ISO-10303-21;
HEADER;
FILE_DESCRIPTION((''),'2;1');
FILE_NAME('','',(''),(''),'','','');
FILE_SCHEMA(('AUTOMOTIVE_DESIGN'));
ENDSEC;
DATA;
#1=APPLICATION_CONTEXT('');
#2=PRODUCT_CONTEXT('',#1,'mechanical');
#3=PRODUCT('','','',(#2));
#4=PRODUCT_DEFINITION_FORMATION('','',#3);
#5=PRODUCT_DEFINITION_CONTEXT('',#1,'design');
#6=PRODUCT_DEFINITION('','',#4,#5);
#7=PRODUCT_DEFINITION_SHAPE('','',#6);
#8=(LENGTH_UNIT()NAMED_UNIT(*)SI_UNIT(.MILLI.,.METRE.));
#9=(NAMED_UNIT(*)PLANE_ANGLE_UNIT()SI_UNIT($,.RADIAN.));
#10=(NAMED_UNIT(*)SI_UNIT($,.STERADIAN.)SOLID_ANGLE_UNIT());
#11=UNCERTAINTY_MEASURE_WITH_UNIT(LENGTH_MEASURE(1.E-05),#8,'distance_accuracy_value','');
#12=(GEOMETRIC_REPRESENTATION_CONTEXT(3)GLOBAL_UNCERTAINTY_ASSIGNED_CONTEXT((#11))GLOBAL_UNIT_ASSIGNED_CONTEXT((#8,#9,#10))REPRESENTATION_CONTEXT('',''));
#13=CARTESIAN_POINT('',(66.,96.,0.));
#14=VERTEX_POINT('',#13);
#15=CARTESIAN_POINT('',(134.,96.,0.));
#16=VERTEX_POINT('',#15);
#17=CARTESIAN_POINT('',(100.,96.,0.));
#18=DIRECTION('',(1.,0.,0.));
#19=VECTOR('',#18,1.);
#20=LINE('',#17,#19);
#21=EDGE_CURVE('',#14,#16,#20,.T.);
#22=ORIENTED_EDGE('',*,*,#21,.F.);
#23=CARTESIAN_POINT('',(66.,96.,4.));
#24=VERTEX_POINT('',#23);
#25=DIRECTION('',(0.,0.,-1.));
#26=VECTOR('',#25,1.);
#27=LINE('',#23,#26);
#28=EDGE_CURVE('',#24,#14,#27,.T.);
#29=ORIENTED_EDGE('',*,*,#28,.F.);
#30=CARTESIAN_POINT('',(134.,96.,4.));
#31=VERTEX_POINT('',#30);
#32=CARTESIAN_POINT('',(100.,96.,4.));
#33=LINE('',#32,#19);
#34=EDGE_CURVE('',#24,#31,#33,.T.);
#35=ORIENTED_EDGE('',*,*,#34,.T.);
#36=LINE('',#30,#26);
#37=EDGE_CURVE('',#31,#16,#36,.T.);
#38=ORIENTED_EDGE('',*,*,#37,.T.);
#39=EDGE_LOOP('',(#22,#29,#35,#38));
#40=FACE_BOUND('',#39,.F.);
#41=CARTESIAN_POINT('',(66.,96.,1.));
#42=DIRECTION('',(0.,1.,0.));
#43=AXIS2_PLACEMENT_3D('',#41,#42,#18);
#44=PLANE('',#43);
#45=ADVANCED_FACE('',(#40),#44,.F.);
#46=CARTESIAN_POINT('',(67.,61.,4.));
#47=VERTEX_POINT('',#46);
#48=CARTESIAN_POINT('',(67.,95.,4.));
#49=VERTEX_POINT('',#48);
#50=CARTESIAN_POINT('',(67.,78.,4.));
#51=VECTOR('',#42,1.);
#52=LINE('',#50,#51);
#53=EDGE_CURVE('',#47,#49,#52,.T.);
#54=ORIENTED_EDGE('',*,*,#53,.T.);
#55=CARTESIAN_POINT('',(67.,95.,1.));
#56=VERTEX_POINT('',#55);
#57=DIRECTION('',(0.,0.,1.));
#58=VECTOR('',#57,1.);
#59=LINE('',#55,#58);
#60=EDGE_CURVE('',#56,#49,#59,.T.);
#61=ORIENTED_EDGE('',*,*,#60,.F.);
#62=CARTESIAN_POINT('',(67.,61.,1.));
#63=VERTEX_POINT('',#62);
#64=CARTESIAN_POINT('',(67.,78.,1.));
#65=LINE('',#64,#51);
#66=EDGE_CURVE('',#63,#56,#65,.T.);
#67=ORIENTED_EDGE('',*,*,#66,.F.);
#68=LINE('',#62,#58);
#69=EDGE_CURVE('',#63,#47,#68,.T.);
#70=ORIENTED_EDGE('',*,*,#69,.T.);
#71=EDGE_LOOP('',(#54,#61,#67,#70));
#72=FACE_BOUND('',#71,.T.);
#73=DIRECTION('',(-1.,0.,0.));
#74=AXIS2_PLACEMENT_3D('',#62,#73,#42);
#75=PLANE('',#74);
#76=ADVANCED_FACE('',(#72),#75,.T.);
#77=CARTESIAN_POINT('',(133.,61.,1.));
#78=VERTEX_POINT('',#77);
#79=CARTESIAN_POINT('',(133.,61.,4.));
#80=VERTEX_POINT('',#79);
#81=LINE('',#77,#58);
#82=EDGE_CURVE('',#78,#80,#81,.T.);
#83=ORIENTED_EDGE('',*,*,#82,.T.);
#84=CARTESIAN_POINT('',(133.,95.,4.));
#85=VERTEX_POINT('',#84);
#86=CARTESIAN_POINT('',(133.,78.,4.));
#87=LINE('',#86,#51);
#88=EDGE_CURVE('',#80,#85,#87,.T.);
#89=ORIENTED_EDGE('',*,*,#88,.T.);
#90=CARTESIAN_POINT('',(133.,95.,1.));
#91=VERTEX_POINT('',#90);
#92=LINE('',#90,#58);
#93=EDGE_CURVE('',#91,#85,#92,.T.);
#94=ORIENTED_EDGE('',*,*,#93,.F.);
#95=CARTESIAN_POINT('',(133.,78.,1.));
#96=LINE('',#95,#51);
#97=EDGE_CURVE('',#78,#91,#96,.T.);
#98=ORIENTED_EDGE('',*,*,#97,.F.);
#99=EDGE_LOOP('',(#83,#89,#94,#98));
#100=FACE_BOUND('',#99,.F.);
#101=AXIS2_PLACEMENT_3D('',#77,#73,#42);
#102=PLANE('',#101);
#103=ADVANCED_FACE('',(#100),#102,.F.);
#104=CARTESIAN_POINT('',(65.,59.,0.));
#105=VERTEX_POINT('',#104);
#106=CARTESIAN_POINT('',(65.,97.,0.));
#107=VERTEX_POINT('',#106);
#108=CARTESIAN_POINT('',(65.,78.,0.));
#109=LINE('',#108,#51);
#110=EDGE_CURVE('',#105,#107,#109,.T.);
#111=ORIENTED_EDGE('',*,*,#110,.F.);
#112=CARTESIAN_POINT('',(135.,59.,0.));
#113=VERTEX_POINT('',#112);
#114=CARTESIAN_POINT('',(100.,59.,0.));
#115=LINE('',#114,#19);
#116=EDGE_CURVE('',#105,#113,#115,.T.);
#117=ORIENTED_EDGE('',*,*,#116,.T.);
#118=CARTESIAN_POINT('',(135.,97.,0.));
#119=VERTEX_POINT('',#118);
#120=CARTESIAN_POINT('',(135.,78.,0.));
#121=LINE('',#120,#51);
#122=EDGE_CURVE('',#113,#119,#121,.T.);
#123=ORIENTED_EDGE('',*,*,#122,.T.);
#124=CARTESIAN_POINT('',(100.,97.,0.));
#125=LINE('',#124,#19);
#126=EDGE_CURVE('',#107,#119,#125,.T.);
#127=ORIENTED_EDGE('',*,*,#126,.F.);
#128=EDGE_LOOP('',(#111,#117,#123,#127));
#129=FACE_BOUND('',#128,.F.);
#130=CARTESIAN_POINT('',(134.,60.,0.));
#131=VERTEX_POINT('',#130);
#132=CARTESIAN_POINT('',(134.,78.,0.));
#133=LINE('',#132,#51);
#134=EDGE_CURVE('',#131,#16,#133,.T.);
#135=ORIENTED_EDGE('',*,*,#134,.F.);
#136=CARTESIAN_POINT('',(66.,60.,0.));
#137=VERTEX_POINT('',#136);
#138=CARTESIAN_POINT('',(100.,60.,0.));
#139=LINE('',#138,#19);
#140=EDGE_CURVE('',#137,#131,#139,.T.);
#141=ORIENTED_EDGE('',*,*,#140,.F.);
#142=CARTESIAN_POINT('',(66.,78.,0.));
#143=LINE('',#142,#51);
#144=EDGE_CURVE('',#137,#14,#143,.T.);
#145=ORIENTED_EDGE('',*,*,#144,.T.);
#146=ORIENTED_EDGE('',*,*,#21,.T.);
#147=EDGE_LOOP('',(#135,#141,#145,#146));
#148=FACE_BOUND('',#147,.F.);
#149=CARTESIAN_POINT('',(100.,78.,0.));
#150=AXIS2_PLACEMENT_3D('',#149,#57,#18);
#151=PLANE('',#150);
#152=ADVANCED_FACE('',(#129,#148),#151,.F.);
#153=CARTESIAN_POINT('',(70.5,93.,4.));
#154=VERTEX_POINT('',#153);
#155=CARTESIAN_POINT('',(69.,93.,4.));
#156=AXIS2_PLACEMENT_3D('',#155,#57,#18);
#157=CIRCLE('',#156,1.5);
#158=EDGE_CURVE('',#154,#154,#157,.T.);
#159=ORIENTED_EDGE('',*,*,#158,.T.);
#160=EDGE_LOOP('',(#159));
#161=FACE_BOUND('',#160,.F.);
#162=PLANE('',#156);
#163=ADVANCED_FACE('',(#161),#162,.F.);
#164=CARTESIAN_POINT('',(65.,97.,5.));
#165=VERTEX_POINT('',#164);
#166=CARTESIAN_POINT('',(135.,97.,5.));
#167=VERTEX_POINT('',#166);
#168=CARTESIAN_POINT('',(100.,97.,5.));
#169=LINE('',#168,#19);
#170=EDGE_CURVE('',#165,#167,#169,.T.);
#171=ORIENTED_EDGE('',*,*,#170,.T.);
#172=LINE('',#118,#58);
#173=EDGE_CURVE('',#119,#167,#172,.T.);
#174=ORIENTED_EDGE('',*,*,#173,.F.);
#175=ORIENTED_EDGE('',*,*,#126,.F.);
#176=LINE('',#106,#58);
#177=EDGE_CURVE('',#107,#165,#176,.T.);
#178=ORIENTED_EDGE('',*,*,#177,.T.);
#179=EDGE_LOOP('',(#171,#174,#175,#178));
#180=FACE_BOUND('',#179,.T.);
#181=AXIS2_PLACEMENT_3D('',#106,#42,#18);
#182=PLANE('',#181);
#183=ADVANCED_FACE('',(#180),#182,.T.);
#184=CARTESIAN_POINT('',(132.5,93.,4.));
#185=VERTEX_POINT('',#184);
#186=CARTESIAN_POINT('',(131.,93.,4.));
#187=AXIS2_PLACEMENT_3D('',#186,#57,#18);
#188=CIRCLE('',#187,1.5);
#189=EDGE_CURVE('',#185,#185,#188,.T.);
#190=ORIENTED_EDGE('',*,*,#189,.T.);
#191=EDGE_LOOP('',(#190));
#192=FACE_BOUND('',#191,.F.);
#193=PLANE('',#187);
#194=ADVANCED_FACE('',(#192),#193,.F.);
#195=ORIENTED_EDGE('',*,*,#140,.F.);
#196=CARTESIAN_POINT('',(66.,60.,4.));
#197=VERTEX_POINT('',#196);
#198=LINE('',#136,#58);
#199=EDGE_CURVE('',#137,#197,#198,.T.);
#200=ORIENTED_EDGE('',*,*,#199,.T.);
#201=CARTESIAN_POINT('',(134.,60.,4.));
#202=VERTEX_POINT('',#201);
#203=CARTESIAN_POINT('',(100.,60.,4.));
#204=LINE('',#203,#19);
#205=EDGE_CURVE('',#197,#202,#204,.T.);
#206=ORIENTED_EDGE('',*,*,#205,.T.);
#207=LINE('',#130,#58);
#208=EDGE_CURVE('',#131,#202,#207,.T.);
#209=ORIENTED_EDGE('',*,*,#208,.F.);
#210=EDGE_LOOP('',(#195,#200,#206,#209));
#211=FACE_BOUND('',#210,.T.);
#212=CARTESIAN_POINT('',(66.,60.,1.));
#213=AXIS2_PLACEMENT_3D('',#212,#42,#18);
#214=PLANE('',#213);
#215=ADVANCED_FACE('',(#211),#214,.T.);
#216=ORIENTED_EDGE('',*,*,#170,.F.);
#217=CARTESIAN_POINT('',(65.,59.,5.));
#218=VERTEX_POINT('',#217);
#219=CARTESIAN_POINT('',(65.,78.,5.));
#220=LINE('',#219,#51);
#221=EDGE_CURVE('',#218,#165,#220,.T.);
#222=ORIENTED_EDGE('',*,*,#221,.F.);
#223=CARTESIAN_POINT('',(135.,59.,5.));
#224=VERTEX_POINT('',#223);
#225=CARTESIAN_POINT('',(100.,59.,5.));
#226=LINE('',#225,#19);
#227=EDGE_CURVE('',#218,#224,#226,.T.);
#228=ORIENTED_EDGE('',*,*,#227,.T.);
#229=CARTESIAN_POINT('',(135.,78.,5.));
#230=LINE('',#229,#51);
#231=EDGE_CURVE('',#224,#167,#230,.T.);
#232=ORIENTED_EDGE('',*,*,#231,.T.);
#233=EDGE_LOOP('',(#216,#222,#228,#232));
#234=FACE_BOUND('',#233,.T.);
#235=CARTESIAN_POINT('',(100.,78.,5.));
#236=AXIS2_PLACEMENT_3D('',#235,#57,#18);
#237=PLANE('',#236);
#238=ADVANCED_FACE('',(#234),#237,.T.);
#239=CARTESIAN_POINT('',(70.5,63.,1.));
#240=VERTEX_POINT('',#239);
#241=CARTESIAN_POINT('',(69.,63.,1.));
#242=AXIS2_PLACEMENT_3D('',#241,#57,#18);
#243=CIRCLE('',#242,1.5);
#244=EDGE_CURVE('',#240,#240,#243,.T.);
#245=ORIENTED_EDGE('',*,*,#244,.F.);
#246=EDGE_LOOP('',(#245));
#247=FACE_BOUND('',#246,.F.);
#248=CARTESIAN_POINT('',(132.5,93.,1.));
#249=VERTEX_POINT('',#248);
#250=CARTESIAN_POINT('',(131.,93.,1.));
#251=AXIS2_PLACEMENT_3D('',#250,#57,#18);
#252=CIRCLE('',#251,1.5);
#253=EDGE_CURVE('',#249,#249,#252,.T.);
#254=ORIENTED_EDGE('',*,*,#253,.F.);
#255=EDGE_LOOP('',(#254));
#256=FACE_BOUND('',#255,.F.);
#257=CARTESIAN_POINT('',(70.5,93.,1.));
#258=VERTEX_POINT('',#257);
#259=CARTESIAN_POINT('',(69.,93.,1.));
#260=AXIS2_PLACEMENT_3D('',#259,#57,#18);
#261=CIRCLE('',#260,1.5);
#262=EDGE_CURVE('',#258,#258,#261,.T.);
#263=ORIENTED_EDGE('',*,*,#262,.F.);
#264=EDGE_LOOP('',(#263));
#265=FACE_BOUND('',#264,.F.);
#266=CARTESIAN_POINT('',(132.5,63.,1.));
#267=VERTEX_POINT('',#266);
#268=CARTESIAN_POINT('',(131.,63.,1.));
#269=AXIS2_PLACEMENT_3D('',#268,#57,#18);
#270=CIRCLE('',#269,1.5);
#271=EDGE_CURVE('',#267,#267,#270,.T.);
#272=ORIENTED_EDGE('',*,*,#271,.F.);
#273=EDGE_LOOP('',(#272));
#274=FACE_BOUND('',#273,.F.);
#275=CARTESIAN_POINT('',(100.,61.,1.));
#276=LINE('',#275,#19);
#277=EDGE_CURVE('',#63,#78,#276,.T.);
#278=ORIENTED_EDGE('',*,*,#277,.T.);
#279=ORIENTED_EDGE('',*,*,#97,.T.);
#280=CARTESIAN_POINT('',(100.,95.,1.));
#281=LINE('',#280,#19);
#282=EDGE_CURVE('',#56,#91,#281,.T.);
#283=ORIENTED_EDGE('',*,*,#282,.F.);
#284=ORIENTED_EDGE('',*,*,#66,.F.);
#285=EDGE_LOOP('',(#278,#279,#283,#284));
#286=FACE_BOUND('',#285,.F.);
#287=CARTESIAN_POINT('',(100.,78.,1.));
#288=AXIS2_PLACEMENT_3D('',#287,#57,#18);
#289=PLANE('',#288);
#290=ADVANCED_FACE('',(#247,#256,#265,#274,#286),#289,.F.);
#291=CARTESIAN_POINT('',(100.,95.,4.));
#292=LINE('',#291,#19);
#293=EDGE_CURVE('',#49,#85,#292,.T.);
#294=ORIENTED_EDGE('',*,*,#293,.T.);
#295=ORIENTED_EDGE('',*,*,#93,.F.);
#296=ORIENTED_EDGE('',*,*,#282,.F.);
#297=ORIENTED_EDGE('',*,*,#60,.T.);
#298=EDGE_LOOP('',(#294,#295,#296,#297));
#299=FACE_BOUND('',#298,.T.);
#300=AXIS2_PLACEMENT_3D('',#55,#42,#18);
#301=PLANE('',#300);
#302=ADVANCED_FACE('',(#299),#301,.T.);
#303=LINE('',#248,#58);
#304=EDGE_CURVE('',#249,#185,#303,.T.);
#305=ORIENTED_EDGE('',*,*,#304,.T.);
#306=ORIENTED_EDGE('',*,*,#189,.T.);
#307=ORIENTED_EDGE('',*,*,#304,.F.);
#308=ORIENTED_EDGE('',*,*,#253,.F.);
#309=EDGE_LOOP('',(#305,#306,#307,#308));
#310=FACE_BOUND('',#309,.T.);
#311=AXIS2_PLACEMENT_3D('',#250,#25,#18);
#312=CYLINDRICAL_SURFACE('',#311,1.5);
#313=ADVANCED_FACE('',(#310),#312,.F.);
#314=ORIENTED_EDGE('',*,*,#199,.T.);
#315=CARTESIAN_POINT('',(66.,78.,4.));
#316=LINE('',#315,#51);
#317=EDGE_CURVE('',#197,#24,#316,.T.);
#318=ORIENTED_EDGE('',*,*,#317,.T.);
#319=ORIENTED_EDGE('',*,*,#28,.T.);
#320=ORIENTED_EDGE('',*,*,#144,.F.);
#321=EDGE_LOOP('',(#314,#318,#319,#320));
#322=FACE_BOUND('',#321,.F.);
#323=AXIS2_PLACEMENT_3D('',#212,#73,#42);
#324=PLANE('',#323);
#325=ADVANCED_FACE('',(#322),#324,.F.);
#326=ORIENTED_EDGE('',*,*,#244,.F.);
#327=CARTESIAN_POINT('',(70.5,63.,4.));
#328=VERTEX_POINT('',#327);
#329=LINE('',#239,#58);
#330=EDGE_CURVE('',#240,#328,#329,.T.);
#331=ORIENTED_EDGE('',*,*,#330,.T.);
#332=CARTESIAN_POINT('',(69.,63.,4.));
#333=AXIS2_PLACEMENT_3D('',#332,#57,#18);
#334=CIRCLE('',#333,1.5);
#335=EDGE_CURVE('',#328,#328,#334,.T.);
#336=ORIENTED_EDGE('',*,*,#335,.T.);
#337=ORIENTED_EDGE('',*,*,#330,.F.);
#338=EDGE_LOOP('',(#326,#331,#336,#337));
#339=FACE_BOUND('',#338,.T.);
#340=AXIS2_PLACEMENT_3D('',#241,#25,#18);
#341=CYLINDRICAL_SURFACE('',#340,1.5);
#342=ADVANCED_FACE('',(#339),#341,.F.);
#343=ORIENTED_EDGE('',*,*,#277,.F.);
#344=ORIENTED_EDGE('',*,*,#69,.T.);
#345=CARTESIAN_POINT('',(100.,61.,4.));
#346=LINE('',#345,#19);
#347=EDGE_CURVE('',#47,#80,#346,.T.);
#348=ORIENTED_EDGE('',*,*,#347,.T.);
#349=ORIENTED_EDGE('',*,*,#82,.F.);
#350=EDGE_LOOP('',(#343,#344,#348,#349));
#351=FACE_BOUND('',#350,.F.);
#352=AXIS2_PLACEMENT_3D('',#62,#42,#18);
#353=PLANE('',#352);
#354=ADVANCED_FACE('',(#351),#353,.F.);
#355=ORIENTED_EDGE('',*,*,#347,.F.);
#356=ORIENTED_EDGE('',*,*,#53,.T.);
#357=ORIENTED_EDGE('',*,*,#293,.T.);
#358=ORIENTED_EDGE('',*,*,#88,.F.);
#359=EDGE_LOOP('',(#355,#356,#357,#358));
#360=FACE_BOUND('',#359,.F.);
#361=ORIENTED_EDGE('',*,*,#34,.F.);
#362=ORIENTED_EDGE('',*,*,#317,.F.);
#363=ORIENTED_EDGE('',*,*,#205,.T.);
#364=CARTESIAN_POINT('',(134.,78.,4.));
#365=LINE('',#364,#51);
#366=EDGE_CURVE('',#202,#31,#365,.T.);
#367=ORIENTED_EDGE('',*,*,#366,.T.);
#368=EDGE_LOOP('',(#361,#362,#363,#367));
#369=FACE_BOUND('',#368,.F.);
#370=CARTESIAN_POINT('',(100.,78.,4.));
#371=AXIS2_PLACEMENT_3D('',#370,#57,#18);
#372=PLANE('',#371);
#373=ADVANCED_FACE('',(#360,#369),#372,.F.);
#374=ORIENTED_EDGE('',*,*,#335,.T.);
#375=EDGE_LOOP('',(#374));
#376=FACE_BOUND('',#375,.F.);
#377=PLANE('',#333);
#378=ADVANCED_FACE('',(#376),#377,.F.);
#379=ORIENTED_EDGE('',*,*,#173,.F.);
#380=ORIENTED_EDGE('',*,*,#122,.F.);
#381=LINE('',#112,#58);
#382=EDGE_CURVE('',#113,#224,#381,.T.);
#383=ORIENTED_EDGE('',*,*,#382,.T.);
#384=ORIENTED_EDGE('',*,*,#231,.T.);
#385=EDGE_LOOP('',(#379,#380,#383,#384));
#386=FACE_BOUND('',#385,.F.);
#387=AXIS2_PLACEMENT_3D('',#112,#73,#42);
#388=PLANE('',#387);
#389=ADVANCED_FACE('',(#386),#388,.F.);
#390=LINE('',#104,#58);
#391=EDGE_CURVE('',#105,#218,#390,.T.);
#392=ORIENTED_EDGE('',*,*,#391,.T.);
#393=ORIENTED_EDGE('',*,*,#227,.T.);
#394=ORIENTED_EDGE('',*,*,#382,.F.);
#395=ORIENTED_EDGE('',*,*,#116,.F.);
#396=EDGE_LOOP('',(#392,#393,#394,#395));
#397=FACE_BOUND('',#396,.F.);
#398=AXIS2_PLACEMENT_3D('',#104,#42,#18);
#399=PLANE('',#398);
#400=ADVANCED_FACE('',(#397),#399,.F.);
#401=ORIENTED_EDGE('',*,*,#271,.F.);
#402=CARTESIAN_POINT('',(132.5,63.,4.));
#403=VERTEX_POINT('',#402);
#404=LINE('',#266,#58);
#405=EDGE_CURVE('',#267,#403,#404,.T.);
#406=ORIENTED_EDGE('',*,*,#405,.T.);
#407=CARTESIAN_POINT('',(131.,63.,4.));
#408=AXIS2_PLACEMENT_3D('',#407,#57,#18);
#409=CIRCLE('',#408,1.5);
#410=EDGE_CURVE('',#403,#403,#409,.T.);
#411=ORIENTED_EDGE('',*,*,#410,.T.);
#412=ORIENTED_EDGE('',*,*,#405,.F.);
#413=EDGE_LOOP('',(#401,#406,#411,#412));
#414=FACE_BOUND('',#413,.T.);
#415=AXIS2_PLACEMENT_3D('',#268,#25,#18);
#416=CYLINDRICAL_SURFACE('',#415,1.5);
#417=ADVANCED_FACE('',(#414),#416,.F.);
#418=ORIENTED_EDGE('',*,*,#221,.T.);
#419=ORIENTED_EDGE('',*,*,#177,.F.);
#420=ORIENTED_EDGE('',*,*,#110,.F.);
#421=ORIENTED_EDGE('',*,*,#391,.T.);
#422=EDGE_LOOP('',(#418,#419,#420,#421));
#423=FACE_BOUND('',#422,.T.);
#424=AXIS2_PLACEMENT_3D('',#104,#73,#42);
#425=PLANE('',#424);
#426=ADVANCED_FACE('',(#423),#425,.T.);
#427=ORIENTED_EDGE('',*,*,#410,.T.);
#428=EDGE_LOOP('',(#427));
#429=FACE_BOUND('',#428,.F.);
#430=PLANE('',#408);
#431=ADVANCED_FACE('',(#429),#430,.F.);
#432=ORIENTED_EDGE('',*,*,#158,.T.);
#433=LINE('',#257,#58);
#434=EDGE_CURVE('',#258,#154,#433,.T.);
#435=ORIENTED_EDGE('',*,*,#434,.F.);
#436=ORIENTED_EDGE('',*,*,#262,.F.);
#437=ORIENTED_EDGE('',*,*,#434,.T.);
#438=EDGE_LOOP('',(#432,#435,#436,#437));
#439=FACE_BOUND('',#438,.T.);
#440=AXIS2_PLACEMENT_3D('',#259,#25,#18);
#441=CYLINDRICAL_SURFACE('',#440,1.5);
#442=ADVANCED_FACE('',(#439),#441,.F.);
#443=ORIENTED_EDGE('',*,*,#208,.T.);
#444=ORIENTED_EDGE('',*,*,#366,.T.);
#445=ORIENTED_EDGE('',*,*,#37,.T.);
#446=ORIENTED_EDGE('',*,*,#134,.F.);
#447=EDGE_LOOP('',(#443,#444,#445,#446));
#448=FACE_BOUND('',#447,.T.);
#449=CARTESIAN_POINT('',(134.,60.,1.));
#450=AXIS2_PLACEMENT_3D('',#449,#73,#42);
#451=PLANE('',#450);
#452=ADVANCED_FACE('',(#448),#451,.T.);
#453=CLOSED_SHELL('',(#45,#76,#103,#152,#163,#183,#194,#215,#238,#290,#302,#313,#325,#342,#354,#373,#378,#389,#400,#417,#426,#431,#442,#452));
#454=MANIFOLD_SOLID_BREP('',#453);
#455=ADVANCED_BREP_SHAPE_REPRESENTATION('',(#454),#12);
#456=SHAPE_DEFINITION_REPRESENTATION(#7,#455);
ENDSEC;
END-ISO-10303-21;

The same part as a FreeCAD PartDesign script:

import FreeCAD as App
import Part
import Sketcher
from FreeCAD import Vector

doc = App.newDocument("Part")
body = doc.addObject("PartDesign::Body", "Body")

# Sketch on XY plane
sketch1 = doc.addObject("Sketcher::SketchObject", "Sketch")
body.addObject(sketch1)
sketch1.AttachmentSupport = (doc.XY_Plane, [""])
sketch1.MapMode = "FlatFace"
sketch1.addGeometry([
    Part.LineSegment(Vector(-34, 18, 0), Vector(-34, -18, 0)),
    Part.LineSegment(Vector(-34, -18, 0), Vector(34, -18, 0)),
    Part.LineSegment(Vector(34, -18, 0), Vector(34, 18, 0)),
    Part.LineSegment(Vector(34, 18, 0), Vector(-34, 18, 0)),
], False)
sketch1.addConstraint([
    Sketcher.Constraint("Coincident", 0, 2, 1, 1),
    Sketcher.Constraint("Coincident", 1, 2, 2, 1),
    Sketcher.Constraint("Coincident", 2, 2, 3, 1),
    Sketcher.Constraint("Coincident", 3, 2, 0, 1),
    Sketcher.Constraint("Vertical", 0),
    Sketcher.Constraint("Horizontal", 1),
    Sketcher.Constraint("Vertical", 2),
    Sketcher.Constraint("Horizontal", 3),
    Sketcher.Constraint("Symmetric", 0, 2, 2, 2, -1, 1),
    Sketcher.Constraint("DistanceX", 1, 1, 1, 2, 68.0),
    Sketcher.Constraint("DistanceY", 0, 2, 0, 1, 36.0),
])
pad1 = doc.addObject("PartDesign::Pad", "Pad")
body.addObject(pad1)
pad1.Profile = sketch1
pad1.Length = 1

# Sketch on XY plane
sketch2 = doc.addObject("Sketcher::SketchObject", "Sketch001")
body.addObject(sketch2)
sketch2.AttachmentSupport = (doc.XY_Plane, [""])
sketch2.MapMode = "FlatFace"
sketch2.AttachmentOffset = App.Placement(Vector(0, 0, 1), App.Rotation())
sketch2.addGeometry([
    Part.LineSegment(Vector(-34, 18, 0), Vector(-34, -18, 0)),  # 0
    Part.LineSegment(Vector(-34, -18, 0), Vector(34, -18, 0)),  # 1
    Part.LineSegment(Vector(34, -18, 0), Vector(34, 18, 0)),  # 2
    Part.LineSegment(Vector(34, 18, 0), Vector(-34, 18, 0)),  # 3
    Part.LineSegment(Vector(33, -17, 0), Vector(-33, -17, 0)),  # 4
    Part.LineSegment(Vector(-33, -17, 0), Vector(-33, 17, 0)),  # 5
    Part.LineSegment(Vector(-33, 17, 0), Vector(33, 17, 0)),  # 6
    Part.LineSegment(Vector(33, 17, 0), Vector(33, -17, 0)),  # 7
], False)
sketch2.addConstraint([
    Sketcher.Constraint("Coincident", 0, 2, 1, 1),
    Sketcher.Constraint("Coincident", 1, 2, 2, 1),
    Sketcher.Constraint("Coincident", 2, 2, 3, 1),
    Sketcher.Constraint("Coincident", 3, 2, 0, 1),
    Sketcher.Constraint("Coincident", 4, 2, 5, 1),
    Sketcher.Constraint("Coincident", 5, 2, 6, 1),
    Sketcher.Constraint("Coincident", 6, 2, 7, 1),
    Sketcher.Constraint("Coincident", 7, 2, 4, 1),
    Sketcher.Constraint("Vertical", 0),
    Sketcher.Constraint("Horizontal", 1),
    Sketcher.Constraint("Vertical", 2),
    Sketcher.Constraint("Horizontal", 3),
    Sketcher.Constraint("Horizontal", 4),
    Sketcher.Constraint("Vertical", 5),
    Sketcher.Constraint("Horizontal", 6),
    Sketcher.Constraint("Vertical", 7),
    Sketcher.Constraint("Symmetric", 0, 2, 2, 2, -1, 1),
    Sketcher.Constraint("Symmetric", 4, 2, 6, 2, -1, 1),
    Sketcher.Constraint("DistanceX", 1, 1, 1, 2, 68.0),
    Sketcher.Constraint("DistanceX", 4, 2, 4, 1, 66.0),
    Sketcher.Constraint("DistanceY", 0, 2, 0, 1, 36.0),
    Sketcher.Constraint("DistanceY", 5, 1, 5, 2, 34.0),
])
pad2 = doc.addObject("PartDesign::Pad", "Pad001")
body.addObject(pad2)
pad2.Profile = sketch2
pad2.Length = 3

# Sketch on XY plane
sketch3 = doc.addObject("Sketcher::SketchObject", "Sketch002")
body.addObject(sketch3)
sketch3.AttachmentSupport = (doc.XY_Plane, [""])
sketch3.MapMode = "FlatFace"
sketch3.AttachmentOffset = App.Placement(Vector(0, 0, 1), App.Rotation())
sketch3.addGeometry([
    Part.Circle(Vector(-31, 15, 0), Vector(0, 0, 1), 1.5),
    Part.Circle(Vector(31, 15, 0), Vector(0, 0, 1), 1.5),
    Part.Circle(Vector(-31, -15, 0), Vector(0, 0, 1), 1.5),
    Part.Circle(Vector(31, -15, 0), Vector(0, 0, 1), 1.5),
], False)
sketch3.addConstraint([
    Sketcher.Constraint("Equal", 0, 1),
    Sketcher.Constraint("Equal", 1, 2),
    Sketcher.Constraint("Equal", 2, 3),
    Sketcher.Constraint("Symmetric", 1, 3, 2, 3, -1, 1),
    Sketcher.Constraint("Symmetric", 0, 3, 3, 3, -1, 1),
    Sketcher.Constraint("Symmetric", 0, 3, 1, 3, -2),
    Sketcher.Constraint("Diameter", 0, 3.0),
    Sketcher.Constraint("DistanceX", 0, 3, -1, 1, 31.0),
    Sketcher.Constraint("DistanceY", -1, 1, 0, 3, 15.0),
])
pad3 = doc.addObject("PartDesign::Pad", "Pad002")
body.addObject(pad3)
pad3.Profile = sketch3
pad3.Length = 3
body2 = doc.addObject("PartDesign::Body", "Body001")
doc.recompute()

body.Placement = App.Placement(Vector(100, 78, 0), App.Rotation(Vector(0, 0, 1), 0))
boolean = doc.addObject("PartDesign::Boolean", "Boolean")
body2.addObject(boolean)
boolean.Type = "Fuse"
boolean.addObjects([body])
body3 = doc.addObject("PartDesign::Body", "Body002")

# Sketch on XY plane
sketch4 = doc.addObject("Sketcher::SketchObject", "Sketch003")
body3.addObject(sketch4)
sketch4.AttachmentSupport = (doc.getObject("XY_Plane002"), [""])
sketch4.MapMode = "FlatFace"
sketch4.addGeometry([
    Part.LineSegment(Vector(65, 97, 0), Vector(65, 59, 0)),
    Part.LineSegment(Vector(65, 59, 0), Vector(135, 59, 0)),
    Part.LineSegment(Vector(135, 59, 0), Vector(135, 97, 0)),
    Part.LineSegment(Vector(135, 97, 0), Vector(65, 97, 0)),
], False)
sketch4.addConstraint([
    Sketcher.Constraint("Coincident", 0, 2, 1, 1),
    Sketcher.Constraint("Coincident", 1, 2, 2, 1),
    Sketcher.Constraint("Coincident", 2, 2, 3, 1),
    Sketcher.Constraint("Coincident", 3, 2, 0, 1),
    Sketcher.Constraint("Vertical", 0),
    Sketcher.Constraint("Horizontal", 1),
    Sketcher.Constraint("Vertical", 2),
    Sketcher.Constraint("Horizontal", 3),
    Sketcher.Constraint("DistanceX", 1, 1, 1, 2, 70.0),
    Sketcher.Constraint("DistanceY", 0, 2, 0, 1, 38.0),
    Sketcher.Constraint("DistanceX", -1, 1, 0, 2, 65.0),
    Sketcher.Constraint("DistanceY", -1, 1, 0, 2, 59.0),
])
pad4 = doc.addObject("PartDesign::Pad", "Pad003")
body3.addObject(pad4)
pad4.Profile = sketch4
pad4.Length = 5
doc.recompute()

boolean2 = doc.addObject("PartDesign::Boolean", "Boolean001")
body3.addObject(boolean2)
boolean2.Type = "Cut"
boolean2.addObjects([body2])

doc.recompute()
